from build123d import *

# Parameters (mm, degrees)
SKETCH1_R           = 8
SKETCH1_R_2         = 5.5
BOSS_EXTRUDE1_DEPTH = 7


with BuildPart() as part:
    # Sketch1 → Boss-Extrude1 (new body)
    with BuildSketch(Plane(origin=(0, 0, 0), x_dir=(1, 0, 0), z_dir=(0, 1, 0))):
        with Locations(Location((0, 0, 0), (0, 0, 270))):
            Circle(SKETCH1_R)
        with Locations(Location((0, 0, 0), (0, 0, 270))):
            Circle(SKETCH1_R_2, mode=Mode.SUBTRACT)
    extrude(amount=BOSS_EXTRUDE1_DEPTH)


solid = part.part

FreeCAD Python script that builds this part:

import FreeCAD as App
import Part
import Sketcher
Q = App.Units.Quantity

doc = App.newDocument("Part")
body = doc.addObject("PartDesign::Body", "Body")

# Sketch on XZ plane
sketch1 = doc.addObject("Sketcher::SketchObject", "Sketch")
body.addObject(sketch1)
sketch1.AttachmentSupport = (doc.XZ_Plane, [""])
sketch1.MapMode = "FlatFace"
sketch1.addGeometry([
    Part.Circle(App.Vector(0, 0, 0), App.Vector(0, 0, 1), 8),
    Part.Circle(App.Vector(0, 0, 0), App.Vector(0, 0, 1), 6),
], False)
sketch1.addConstraint([
    Sketcher.Constraint("Coincident", 0, 3, -1, 1),
    Sketcher.Constraint("Coincident", 1, 3, -1, 1),
    Sketcher.Constraint("Diameter", 0, Q("16 mm")),
    Sketcher.Constraint("Diameter", 1, Q("11 mm")),
])
pad1 = doc.addObject("PartDesign::Pad", "Pad")
body.addObject(pad1)
pad1.Profile = sketch1
pad1.Length = 7
pad1.Reversed = True

doc.recompute()
